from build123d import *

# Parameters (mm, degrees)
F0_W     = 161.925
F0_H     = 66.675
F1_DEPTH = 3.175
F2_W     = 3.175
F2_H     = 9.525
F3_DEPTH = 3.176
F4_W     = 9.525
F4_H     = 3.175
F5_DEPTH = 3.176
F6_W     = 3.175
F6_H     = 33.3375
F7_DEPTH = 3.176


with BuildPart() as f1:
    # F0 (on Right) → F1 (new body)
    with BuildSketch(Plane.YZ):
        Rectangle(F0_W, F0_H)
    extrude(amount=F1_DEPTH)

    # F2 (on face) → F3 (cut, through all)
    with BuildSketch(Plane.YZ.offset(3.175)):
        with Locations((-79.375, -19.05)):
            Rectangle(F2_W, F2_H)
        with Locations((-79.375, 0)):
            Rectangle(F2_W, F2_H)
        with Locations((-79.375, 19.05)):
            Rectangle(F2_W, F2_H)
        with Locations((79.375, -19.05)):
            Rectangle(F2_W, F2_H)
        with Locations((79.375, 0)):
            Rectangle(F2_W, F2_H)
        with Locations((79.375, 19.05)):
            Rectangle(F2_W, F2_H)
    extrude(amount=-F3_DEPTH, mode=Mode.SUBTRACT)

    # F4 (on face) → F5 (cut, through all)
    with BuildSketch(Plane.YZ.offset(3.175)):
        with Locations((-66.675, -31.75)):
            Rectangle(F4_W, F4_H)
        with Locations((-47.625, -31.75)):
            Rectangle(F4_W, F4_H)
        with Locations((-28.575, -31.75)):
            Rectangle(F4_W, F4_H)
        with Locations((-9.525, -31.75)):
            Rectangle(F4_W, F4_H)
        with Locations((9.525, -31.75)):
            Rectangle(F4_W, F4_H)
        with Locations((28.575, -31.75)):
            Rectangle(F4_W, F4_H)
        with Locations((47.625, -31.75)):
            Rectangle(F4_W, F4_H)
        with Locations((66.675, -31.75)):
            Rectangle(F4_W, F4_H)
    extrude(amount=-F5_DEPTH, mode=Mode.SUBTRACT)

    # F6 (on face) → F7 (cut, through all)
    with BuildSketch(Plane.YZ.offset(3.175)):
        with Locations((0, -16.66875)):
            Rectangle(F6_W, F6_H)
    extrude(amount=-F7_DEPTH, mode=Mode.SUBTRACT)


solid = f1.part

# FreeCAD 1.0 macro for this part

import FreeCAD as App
import Part
import Sketcher
Q = App.Units.Quantity


def add_polygon(sketch, points):
    """Adds a closed chain of lines whose ends are joined by coincident constraints."""
    first, n = sketch.GeometryCount, len(points)
    for a, b in zip(points, points[1:] + points[:1]):
        sketch.addGeometry(Part.LineSegment(App.Vector(*a, 0), App.Vector(*b, 0)), False)
    for i in range(n):
        sketch.addConstraint(Sketcher.Constraint("Coincident", first + i, 2, first + (i + 1) % n, 1))

doc = App.newDocument("Part")
params = doc.addObject("Spreadsheet::Sheet", "Params")
for row, (alias, value) in enumerate([
    ("sketch1_width", "6.375 in"),
    ("sketch1_height", "2.625 in"),
    ("pad1_length", "0.125 in"),
    ("sketch2_width", "0.125 in"),
    ("sketch2_height", "0.375 in"),
    ("sketch3_width", "0.375 in"),
    ("sketch3_height", "0.125 in"),
    ("sketch4_width", "0.125 in"),
    ("sketch4_height", "1.3125 in"),
], start=1):
    params.set(f"A{row}", alias)
    params.set(f"B{row}", "=" + value)
    params.setAlias(f"B{row}", alias)

body = doc.addObject("PartDesign::Body", "Body")

# Sketch on YZ plane
sketch1 = body.newObject("Sketcher::SketchObject", "Sketch")
sketch1.AttachmentSupport = (doc.getObject("YZ_Plane"), [""])
sketch1.MapMode = "FlatFace"
add_polygon(sketch1, [(-81, 33), (-81, -33), (81, -33), (81, 33)])  # lines 0-3
sketch1.addConstraint([
    Sketcher.Constraint("Vertical", 0),
    Sketcher.Constraint("Horizontal", 1),
    Sketcher.Constraint("Vertical", 2),
    Sketcher.Constraint("Horizontal", 3),
    Sketcher.Constraint("Symmetric", 0, 2, 2, 2, -1, 1),
    Sketcher.Constraint("DistanceX", 1, 1, 1, 2, Q("6.375 in")),
    Sketcher.Constraint("DistanceY", 0, 2, 0, 1, Q("2.625 in")),
])
sketch1.setExpression("Constraints[9]", "Params.sketch1_width")
sketch1.setExpression("Constraints[10]", "Params.sketch1_height")
pad1 = body.newObject("PartDesign::Pad", "Pad")
pad1.Profile = sketch1
pad1.setExpression("Length", "Params.pad1_length")

# Sketch on YZ plane
sketch2 = body.newObject("Sketcher::SketchObject", "Sketch001")
sketch2.AttachmentSupport = (doc.getObject("YZ_Plane"), [""])
sketch2.MapMode = "FlatFace"
sketch2.AttachmentOffset = App.Placement(App.Vector(0, 0, 0.125 * 25.4), App.Rotation())
add_polygon(sketch2, [(-81, -14.3), (-81, -23.8), (-77.8, -23.8), (-77.8, -14.3)])  # lines 0-3
add_polygon(sketch2, [(-81, 4.8), (-81, -4.8), (-77.8, -4.8), (-77.8, 4.8)])  # lines 4-7
add_polygon(sketch2, [(-81, 23.8), (-81, 14.3), (-77.8, 14.3), (-77.8, 23.8)])  # lines 8-11
add_polygon(sketch2, [(77.8, -14.3), (77.8, -23.8), (81, -23.8), (81, -14.3)])  # lines 12-15
add_polygon(sketch2, [(77.8, 4.8), (77.8, -4.8), (81, -4.8), (81, 4.8)])  # lines 16-19
add_polygon(sketch2, [(77.8, 23.8), (77.8, 14.3), (81, 14.3), (81, 23.8)])  # lines 20-23
sketch2.addConstraint([
    Sketcher.Constraint("Vertical", 0),
    Sketcher.Constraint("Horizontal", 1),
    Sketcher.Constraint("Vertical", 2),
    Sketcher.Constraint("Horizontal", 3),
    Sketcher.Constraint("Vertical", 4),
    Sketcher.Constraint("Horizontal", 5),
    Sketcher.Constraint("Vertical", 6),
    Sketcher.Constraint("Horizontal", 7),
    Sketcher.Constraint("Vertical", 8),
    Sketcher.Constraint("Horizontal", 9),
    Sketcher.Constraint("Vertical", 10),
    Sketcher.Constraint("Horizontal", 11),
    Sketcher.Constraint("Vertical", 12),
    Sketcher.Constraint("Horizontal", 13),
    Sketcher.Constraint("Vertical", 14),
    Sketcher.Constraint("Horizontal", 15),
    Sketcher.Constraint("Vertical", 16),
    Sketcher.Constraint("Horizontal", 17),
    Sketcher.Constraint("Vertical", 18),
    Sketcher.Constraint("Horizontal", 19),
    Sketcher.Constraint("Vertical", 20),
    Sketcher.Constraint("Horizontal", 21),
    Sketcher.Constraint("Vertical", 22),
    Sketcher.Constraint("Horizontal", 23),
    Sketcher.Constraint("Symmetric", 10, 2, 12, 2, -1, 1),
    Sketcher.Constraint("Symmetric", 8, 2, 14, 2, -1, 1),
    Sketcher.Constraint("Symmetric", 6, 2, 16, 2, -1, 1),
    Sketcher.Constraint("Symmetric", 4, 2, 18, 2, -1, 1),
    Sketcher.Constraint("Symmetric", 2, 2, 20, 2, -1, 1),
    Sketcher.Constraint("Symmetric", 0, 2, 22, 2, -1, 1),
    Sketcher.Constraint("Symmetric", 1, 2, 12, 2, -2),
    Sketcher.Constraint("Symmetric", 3, 2, 14, 2, -2),
    Sketcher.Constraint("Horizontal", 5, 2, 16, 2),
    Sketcher.Constraint("Vertical", 3, 2, 4, 2),
    Sketcher.Constraint("Vertical", 2, 2, 5, 2),
    Sketcher.Constraint("Equal", 2, 4),
    Sketcher.Constraint("DistanceX", 1, 1, 1, 2, Q("0.125 in")),
    Sketcher.Constraint("DistanceY", 0, 2, 0, 1, Q("0.375 in")),
    Sketcher.Constraint("DistanceY", 0, 2, 4, 2, Q("0.75 in")),
    Sketcher.Constraint("DistanceX", 0, 2, 12, 2, Q("6.25 in")),
])
sketch2.setExpression("Constraints[60]", "Params.sketch2_width")
sketch2.setExpression("Constraints[61]", "Params.sketch2_height")
pocket1 = body.newObject("PartDesign::Pocket", "Pocket")
pocket1.Profile = sketch2
pocket1.Type = "ThroughAll"

# Sketch on YZ plane
sketch3 = body.newObject("Sketcher::SketchObject", "Sketch002")
sketch3.AttachmentSupport = (doc.getObject("YZ_Plane"), [""])
sketch3.MapMode = "FlatFace"
sketch3.AttachmentOffset = App.Placement(App.Vector(0, 0, 0.125 * 25.4), App.Rotation())
add_polygon(sketch3, [(-71.4, -30.2), (-71.4, -33.3), (-61.9, -33.3), (-61.9, -30.2)])  # lines 0-3
add_polygon(sketch3, [(-52.4, -30.2), (-52.4, -33.3), (-42.9, -33.3), (-42.9, -30.2)])  # lines 4-7
add_polygon(sketch3, [(-33.3, -30.2), (-33.3, -33.3), (-23.8, -33.3), (-23.8, -30.2)])  # lines 8-11
add_polygon(sketch3, [(-14.3, -30.2), (-14.3, -33.3), (-4.8, -33.3), (-4.8, -30.2)])  # lines 12-15
add_polygon(sketch3, [(4.8, -30.2), (4.8, -33.3), (14.3, -33.3), (14.3, -30.2)])  # lines 16-19
add_polygon(sketch3, [(23.8, -30.2), (23.8, -33.3), (33.3, -33.3), (33.3, -30.2)])  # lines 20-23
add_polygon(sketch3, [(42.9, -30.2), (42.9, -33.3), (52.4, -33.3), (52.4, -30.2)])  # lines 24-27
add_polygon(sketch3, [(61.9, -30.2), (61.9, -33.3), (71.4, -33.3), (71.4, -30.2)])  # lines 28-31
sketch3.addConstraint([
    Sketcher.Constraint("Vertical", 0),
    Sketcher.Constraint("Horizontal", 1),
    Sketcher.Constraint("Vertical", 2),
    Sketcher.Constraint("Horizontal", 3),
    Sketcher.Constraint("Vertical", 4),
    Sketcher.Constraint("Horizontal", 5),
    Sketcher.Constraint("Vertical", 6),
    Sketcher.Constraint("Horizontal", 7),
    Sketcher.Constraint("Vertical", 8),
    Sketcher.Constraint("Horizontal", 9),
    Sketcher.Constraint("Vertical", 10),
    Sketcher.Constraint("Horizontal", 11),
    Sketcher.Constraint("Vertical", 12),
    Sketcher.Constraint("Horizontal", 13),
    Sketcher.Constraint("Vertical", 14),
    Sketcher.Constraint("Horizontal", 15),
    Sketcher.Constraint("Vertical", 16),
    Sketcher.Constraint("Horizontal", 17),
    Sketcher.Constraint("Vertical", 18),
    Sketcher.Constraint("Horizontal", 19),
    Sketcher.Constraint("Vertical", 20),
    Sketcher.Constraint("Horizontal", 21),
    Sketcher.Constraint("Vertical", 22),
    Sketcher.Constraint("Horizontal", 23),
    Sketcher.Constraint("Vertical", 24),
    Sketcher.Constraint("Horizontal", 25),
    Sketcher.Constraint("Vertical", 26),
    Sketcher.Constraint("Horizontal", 27),
    Sketcher.Constraint("Vertical", 28),
    Sketcher.Constraint("Horizontal", 29),
    Sketcher.Constraint("Vertical", 30),
    Sketcher.Constraint("Horizontal", 31),
    Sketcher.Constraint("Symmetric", 13, 2, 16, 2, -2),
    Sketcher.Constraint("Symmetric", 15, 2, 18, 2, -2),
    Sketcher.Constraint("Symmetric", 9, 2, 20, 2, -2),
    Sketcher.Constraint("Symmetric", 11, 2, 22, 2, -2),
    Sketcher.Constraint("Symmetric", 5, 2, 24, 2, -2),
    Sketcher.Constraint("Symmetric", 7, 2, 26, 2, -2),
    Sketcher.Constraint("Symmetric", 1, 2, 28, 2, -2),
    Sketcher.Constraint("Symmetric", 3, 2, 30, 2, -2),
    Sketcher.Constraint("Horizontal", 1, 2, 4, 2),
    Sketcher.Constraint("Horizontal", 3, 2, 6, 2),
    Sketcher.Constraint("Horizontal", 5, 2, 8, 2),
    Sketcher.Constraint("Horizontal", 7, 2, 10, 2),
    Sketcher.Constraint("Horizontal", 9, 2, 12, 2),
    Sketcher.Constraint("Horizontal", 11, 2, 14, 2),
    Sketcher.Constraint("Equal", 3, 5),
    Sketcher.Constraint("Equal", 7, 9),
    Sketcher.Constraint("Equal", 11, 13),
    Sketcher.Constraint("DistanceX", 1, 1, 1, 2, Q("0.375 in")),
    Sketcher.Constraint("DistanceY", 0, 2, 0, 1, Q("0.125 in")),
    Sketcher.Constraint("DistanceX", 0, 2, 4, 2, Q("0.75 in")),
    Sketcher.Constraint("DistanceX", 4, 2, 8, 2, Q("0.75 in")),
    Sketcher.Constraint("DistanceX", 8, 2, 12, 2, Q("0.75 in")),
    Sketcher.Constraint("DistanceX", 12, 2, 16, 2, Q("0.75 in")),
    Sketcher.Constraint("DistanceY", 0, 2, -1, 1, Q("1.3125 in")),
])
sketch3.setExpression("Constraints[81]", "Params.sketch3_width")
sketch3.setExpression("Constraints[82]", "Params.sketch3_height")
pocket2 = body.newObject("PartDesign::Pocket", "Pocket001")
pocket2.Profile = sketch3
pocket2.Type = "ThroughAll"

# Sketch on YZ plane
sketch4 = body.newObject("Sketcher::SketchObject", "Sketch003")
sketch4.AttachmentSupport = (doc.getObject("YZ_Plane"), [""])
sketch4.MapMode = "FlatFace"
sketch4.AttachmentOffset = App.Placement(App.Vector(0, 0, 0.125 * 25.4), App.Rotation())
add_polygon(sketch4, [(-1.6, 0), (-1.6, -33.3), (1.6, -33.3), (1.6, 0)])  # lines 0-3
sketch4.addConstraint([
    Sketcher.Constraint("Vertical", 0),
    Sketcher.Constraint("Horizontal", 1),
    Sketcher.Constraint("Vertical", 2),
    Sketcher.Constraint("Horizontal", 3),
    Sketcher.Constraint("Symmetric", 2, 2, 3, 2, -1, 1),
    Sketcher.Constraint("DistanceX", 1, 1, 1, 2, Q("0.125 in")),
    Sketcher.Constraint("DistanceY", 0, 2, 0, 1, Q("1.3125 in")),
])
sketch4.setExpression("Constraints[9]", "Params.sketch4_width")
sketch4.setExpression("Constraints[10]", "Params.sketch4_height")
pocket3 = body.newObject("PartDesign::Pocket", "Pocket002")
pocket3.Profile = sketch4
pocket3.Type = "ThroughAll"

doc.recompute()
